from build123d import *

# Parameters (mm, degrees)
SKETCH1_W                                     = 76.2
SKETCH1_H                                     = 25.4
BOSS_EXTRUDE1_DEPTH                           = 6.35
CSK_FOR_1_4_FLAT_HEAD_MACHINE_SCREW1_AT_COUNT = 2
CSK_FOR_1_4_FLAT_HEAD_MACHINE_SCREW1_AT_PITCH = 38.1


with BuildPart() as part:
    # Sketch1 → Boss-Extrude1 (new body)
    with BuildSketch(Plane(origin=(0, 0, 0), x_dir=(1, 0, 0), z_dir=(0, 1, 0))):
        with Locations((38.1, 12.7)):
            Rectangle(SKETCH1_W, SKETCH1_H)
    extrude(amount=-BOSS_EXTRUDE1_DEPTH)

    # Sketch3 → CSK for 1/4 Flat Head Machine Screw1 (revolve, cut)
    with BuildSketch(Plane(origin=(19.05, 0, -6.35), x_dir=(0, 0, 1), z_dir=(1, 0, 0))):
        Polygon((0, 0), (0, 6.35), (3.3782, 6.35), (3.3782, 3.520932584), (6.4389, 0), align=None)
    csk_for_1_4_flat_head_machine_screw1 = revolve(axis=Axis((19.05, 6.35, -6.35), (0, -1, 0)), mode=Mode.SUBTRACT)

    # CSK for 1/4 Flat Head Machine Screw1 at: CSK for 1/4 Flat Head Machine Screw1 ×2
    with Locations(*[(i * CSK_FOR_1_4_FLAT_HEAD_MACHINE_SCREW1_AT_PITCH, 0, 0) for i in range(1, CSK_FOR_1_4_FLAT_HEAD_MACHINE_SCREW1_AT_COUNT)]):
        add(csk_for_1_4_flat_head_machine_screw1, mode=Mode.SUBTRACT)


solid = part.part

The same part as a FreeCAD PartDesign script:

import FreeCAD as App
import Part
import Sketcher
from FreeCAD import Vector
Q = App.Units.Quantity


def add_polygon(sketch, points):
    """Adds a closed chain of lines whose ends are joined by coincident constraints."""
    first, n = sketch.GeometryCount, len(points)
    for a, b in zip(points, points[1:] + points[:1]):
        sketch.addGeometry(Part.LineSegment(App.Vector(*a, 0), App.Vector(*b, 0)), False)
    for i in range(n):
        sketch.addConstraint(Sketcher.Constraint("Coincident", first + i, 2, first + (i + 1) % n, 1))

doc = App.newDocument("Part")
params = doc.addObject("Spreadsheet::Sheet", "Params")
for row, (alias, value) in enumerate([
    ("sketch1_width", "3 in"),
    ("sketch1_height", "1 in"),
    ("pad1_length", "0.25 in"),
    ("sketch2_width", "0.25 in"),
    ("sketch2_height", "0.133 in"),
    ("groove_angle", "360 deg"),
    ("linearpattern_pitch", "1.5 in"),
], start=1):
    params.set(f"A{row}", alias)
    params.set(f"B{row}", "=" + value)
    params.setAlias(f"B{row}", alias)

body = doc.addObject("PartDesign::Body", "Body")

sketch1 = body.newObject("Sketcher::SketchObject", "Sketch")
sketch1.AttachmentSupport = (doc.getObject("XZ_Plane"), [""])
sketch1.MapMode = "FlatFace"
add_polygon(sketch1, [(0, -25), (0, 0), (76, 0), (76, -25)])
sketch1.addConstraint([
    Sketcher.Constraint("Vertical", 0),
    Sketcher.Constraint("Horizontal", 1),
    Sketcher.Constraint("Vertical", 2),
    Sketcher.Constraint("Horizontal", 3),
    Sketcher.Constraint("Coincident", 0, 2, -1, 1),
    Sketcher.Constraint("DistanceX", 1, 1, 1, 2, Q("3 in")),
    Sketcher.Constraint("DistanceY", 0, 1, 0, 2, Q("1 in")),
])
sketch1.setExpression("Constraints[9]", "Params.sketch1_width")
sketch1.setExpression("Constraints[10]", "Params.sketch1_height")
pad1 = body.newObject("PartDesign::Pad", "Pad")
pad1.Profile = sketch1
pad1.setExpression("Length", "Params.pad1_length")

sketch2 = body.newObject("Sketcher::SketchObject", "Sketch001")
sketch2.AttachmentSupport = (doc.getObject("YZ_Plane"), [""])
sketch2.MapMode = "FlatFace"
sketch2.AttachmentOffset = App.Placement(Vector(0, 0, 0.75 * 25.4), App.Rotation())
add_polygon(sketch2, [(-6.3, -6.3), (0, -6.3), (0, 0.1), (-3.5, -3), (-6.3, -3)])
sketch2.addGeometry(Part.LineSegment(Vector(0, -6.3, 0), Vector(-6.3, -6.3, 0)), True)
sketch2.addConstraint([
    Sketcher.Constraint("Horizontal", 0),
    Sketcher.Constraint("Vertical", 1),
    Sketcher.Constraint("Horizontal", 3),
    Sketcher.Constraint("Vertical", 4),
    Sketcher.Constraint("Horizontal", 5),
    Sketcher.Constraint("Coincident", 5, 1, 0, 2),
    Sketcher.Constraint("PointOnObject", 0, 2, -2),
    Sketcher.Constraint("Vertical", 3, 2, 5, 2),
    Sketcher.Constraint("Angle", 2, Q("-139 deg")),
    Sketcher.Constraint("DistanceX", 0, 1, 0, 2, Q("0.25 in")),
    Sketcher.Constraint("DistanceY", 4, 2, 4, 1, Q("0.133 in")),
    Sketcher.Constraint("DistanceY", 0, 2, -1, 1, Q("0.25 in")),
    Sketcher.Constraint("DistanceY", 1, 1, 1, 2, Q("0.2535 in")),
])
sketch2.setExpression("Constraints[14]", "Params.sketch2_width")
sketch2.setExpression("Constraints[15]", "Params.sketch2_height")
groove = body.newObject("PartDesign::Groove", "Groove")
groove.Profile = sketch2
groove.ReferenceAxis = (sketch2, ["Axis0"])
groove.setExpression("Angle", "Params.groove_angle")
doc.recompute()

linearpattern = body.newObject("PartDesign::LinearPattern", "LinearPattern")
linearpattern.Originals = [groove]
linearpattern.Direction = (doc.getObject("X_Axis"), [""])
linearpattern.Mode = "offset"
linearpattern.setExpression("Offset", "Params.linearpattern_pitch")
linearpattern.Occurrences = 2
body.Tip = linearpattern

doc.recompute()
